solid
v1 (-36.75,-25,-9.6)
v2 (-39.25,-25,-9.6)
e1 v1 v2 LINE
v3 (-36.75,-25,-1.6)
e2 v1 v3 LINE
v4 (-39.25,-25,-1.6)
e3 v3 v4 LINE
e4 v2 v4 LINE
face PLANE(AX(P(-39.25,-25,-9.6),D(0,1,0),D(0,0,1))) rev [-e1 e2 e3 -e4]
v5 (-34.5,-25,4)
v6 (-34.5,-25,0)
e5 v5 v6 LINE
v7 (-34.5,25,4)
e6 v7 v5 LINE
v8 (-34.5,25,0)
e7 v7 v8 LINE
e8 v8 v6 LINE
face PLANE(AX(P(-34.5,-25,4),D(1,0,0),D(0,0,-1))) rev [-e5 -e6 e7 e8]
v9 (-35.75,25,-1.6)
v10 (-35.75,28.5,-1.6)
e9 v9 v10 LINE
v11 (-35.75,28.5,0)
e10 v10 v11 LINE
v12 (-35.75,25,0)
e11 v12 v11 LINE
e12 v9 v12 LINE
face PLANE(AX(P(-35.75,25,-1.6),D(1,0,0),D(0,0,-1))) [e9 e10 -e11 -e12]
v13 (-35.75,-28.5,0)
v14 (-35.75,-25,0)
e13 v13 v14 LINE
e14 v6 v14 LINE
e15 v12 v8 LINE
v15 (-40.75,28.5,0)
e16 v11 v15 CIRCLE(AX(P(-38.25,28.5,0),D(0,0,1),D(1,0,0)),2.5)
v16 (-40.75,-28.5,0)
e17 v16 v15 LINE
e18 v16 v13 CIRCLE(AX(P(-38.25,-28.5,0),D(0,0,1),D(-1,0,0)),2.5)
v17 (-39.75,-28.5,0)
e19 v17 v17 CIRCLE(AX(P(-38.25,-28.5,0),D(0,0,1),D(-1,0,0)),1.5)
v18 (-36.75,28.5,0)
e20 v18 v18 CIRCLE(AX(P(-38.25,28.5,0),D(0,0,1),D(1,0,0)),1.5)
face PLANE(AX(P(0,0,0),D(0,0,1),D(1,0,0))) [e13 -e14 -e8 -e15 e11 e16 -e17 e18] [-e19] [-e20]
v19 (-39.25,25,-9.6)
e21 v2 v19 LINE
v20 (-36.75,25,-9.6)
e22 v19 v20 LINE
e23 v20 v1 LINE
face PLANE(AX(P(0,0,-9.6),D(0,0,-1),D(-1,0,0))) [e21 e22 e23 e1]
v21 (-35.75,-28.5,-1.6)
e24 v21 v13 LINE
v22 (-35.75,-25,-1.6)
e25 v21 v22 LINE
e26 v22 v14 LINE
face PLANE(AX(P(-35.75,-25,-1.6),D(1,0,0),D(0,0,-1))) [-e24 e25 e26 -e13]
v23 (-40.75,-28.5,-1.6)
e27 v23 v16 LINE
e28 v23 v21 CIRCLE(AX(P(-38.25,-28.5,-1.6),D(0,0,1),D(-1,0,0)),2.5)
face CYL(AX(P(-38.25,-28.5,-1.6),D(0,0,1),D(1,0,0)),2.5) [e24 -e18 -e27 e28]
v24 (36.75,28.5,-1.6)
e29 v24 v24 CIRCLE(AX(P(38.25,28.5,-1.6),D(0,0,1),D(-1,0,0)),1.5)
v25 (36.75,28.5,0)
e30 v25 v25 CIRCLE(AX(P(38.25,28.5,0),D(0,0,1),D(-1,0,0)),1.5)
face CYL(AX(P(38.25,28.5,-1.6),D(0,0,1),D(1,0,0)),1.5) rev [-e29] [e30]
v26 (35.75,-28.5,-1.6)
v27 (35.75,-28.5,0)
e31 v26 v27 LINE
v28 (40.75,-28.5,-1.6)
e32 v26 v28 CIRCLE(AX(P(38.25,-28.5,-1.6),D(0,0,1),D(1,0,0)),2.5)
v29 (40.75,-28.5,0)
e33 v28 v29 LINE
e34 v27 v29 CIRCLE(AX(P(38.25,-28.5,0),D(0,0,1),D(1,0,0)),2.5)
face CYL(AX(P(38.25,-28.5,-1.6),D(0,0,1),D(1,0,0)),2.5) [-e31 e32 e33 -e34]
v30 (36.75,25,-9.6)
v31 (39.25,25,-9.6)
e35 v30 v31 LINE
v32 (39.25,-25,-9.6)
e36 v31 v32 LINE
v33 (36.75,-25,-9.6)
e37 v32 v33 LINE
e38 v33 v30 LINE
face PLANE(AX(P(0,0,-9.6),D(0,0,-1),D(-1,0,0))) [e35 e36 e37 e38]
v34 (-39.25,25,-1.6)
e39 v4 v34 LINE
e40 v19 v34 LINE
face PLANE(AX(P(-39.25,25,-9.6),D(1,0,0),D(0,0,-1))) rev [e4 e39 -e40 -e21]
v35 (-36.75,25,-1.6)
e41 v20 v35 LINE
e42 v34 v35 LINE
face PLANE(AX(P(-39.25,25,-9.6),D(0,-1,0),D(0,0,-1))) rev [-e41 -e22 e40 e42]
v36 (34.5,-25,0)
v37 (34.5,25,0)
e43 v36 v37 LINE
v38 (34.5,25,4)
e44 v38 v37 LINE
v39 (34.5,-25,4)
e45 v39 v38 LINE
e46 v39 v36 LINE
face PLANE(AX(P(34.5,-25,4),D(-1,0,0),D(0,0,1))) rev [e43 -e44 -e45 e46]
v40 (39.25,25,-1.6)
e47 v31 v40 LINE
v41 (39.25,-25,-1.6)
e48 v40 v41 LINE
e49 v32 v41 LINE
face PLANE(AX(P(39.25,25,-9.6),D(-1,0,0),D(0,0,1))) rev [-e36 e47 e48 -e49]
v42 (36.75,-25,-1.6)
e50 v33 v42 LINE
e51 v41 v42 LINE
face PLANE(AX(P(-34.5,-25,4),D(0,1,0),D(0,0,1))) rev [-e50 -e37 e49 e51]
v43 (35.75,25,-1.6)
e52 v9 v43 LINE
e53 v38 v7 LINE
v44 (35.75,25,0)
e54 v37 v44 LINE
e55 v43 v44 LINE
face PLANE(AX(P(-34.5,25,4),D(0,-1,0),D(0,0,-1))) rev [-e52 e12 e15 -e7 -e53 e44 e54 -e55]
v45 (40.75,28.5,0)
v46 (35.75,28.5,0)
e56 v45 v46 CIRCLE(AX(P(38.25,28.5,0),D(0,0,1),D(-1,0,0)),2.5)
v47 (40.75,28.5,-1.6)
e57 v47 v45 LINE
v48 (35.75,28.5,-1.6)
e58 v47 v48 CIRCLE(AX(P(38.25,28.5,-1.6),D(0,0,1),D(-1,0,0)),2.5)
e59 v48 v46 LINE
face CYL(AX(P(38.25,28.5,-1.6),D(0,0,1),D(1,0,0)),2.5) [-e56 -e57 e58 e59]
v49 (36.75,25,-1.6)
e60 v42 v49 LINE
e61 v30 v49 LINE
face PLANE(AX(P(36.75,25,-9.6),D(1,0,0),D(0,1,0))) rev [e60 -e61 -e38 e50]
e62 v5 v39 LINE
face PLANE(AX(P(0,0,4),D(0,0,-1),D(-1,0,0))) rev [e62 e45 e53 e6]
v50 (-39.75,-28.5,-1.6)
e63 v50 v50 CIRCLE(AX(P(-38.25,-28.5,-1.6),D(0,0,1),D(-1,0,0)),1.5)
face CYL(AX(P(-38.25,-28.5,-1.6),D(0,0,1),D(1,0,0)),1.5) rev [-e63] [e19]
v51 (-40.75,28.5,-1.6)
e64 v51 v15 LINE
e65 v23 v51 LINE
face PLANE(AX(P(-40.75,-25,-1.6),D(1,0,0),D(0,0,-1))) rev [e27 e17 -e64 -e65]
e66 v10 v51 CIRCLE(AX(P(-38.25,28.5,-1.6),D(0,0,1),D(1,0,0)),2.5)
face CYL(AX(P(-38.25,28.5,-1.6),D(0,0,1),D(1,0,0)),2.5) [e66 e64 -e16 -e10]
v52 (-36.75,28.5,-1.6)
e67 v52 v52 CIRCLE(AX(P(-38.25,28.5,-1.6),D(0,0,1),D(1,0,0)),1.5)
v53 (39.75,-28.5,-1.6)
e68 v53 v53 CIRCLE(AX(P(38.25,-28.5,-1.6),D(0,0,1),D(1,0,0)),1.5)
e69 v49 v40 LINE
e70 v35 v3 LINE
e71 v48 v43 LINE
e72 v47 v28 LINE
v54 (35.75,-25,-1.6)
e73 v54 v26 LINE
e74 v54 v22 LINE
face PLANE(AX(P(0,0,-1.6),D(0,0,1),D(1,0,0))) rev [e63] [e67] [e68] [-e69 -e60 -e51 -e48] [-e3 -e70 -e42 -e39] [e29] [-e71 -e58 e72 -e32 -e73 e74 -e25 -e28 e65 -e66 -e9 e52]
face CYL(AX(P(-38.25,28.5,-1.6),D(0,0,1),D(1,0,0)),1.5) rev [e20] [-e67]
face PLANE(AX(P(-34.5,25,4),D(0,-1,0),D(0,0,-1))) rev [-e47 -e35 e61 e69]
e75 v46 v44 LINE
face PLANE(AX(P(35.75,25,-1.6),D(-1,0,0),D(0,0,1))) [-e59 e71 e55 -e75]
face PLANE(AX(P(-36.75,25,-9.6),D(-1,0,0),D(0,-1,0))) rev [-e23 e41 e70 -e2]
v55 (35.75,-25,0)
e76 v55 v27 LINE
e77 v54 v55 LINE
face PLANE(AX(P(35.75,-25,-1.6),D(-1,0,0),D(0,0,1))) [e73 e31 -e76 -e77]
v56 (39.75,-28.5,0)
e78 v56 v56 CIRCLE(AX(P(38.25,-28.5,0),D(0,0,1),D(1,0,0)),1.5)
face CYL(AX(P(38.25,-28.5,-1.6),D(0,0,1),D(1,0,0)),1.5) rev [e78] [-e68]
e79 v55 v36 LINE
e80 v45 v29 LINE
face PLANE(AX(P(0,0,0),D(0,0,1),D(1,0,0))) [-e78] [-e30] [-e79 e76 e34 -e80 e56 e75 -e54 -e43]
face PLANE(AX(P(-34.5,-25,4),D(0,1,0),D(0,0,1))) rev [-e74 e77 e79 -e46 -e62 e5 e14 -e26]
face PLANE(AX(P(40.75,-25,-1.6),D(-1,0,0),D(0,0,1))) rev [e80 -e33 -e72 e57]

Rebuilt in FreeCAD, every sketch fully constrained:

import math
import FreeCAD as App
import Part
import Sketcher
from FreeCAD import Vector


def add_polygon(sketch, points):
    """Adds a closed chain of lines whose ends are joined by coincident constraints."""
    first, n = sketch.GeometryCount, len(points)
    for a, b in zip(points, points[1:] + points[:1]):
        sketch.addGeometry(Part.LineSegment(App.Vector(*a, 0), App.Vector(*b, 0)), False)
    for i in range(n):
        sketch.addConstraint(Sketcher.Constraint("Coincident", first + i, 2, first + (i + 1) % n, 1))

doc = App.newDocument("Part")
body = doc.addObject("PartDesign::Body", "Body")

# Sketch on XY plane
sketch1 = body.newObject("Sketcher::SketchObject", "Sketch")
sketch1.AttachmentSupport = (doc.getObject("XY_Plane"), [""])
sketch1.MapMode = "FlatFace"
add_polygon(sketch1, [(-34, 25), (-34, -25), (34, -25), (34, 25)])  # lines 0-3
sketch1.addConstraint([
    Sketcher.Constraint("Vertical", 0),
    Sketcher.Constraint("Horizontal", 1),
    Sketcher.Constraint("Vertical", 2),
    Sketcher.Constraint("Horizontal", 3),
    Sketcher.Constraint("Symmetric", 0, 2, 2, 2, -1, 1),
    Sketcher.Constraint("DistanceX", 1, 1, 1, 2, 69.0),
    Sketcher.Constraint("DistanceY", 0, 2, 0, 1, 50.0),
])
pad1 = body.newObject("PartDesign::Pad", "Pad")
pad1.Profile = sketch1
pad1.Length = 4

# Sketch on XY plane
sketch2 = body.newObject("Sketcher::SketchObject", "Sketch001")
sketch2.AttachmentSupport = (doc.getObject("XY_Plane"), [""])
sketch2.MapMode = "FlatFace"
add_polygon(sketch2, [(41, 25), (41, -25), (-41, -25), (-41, 25)])  # lines 0-3
sketch2.addConstraint([
    Sketcher.Constraint("Vertical", 0),
    Sketcher.Constraint("Horizontal", 1),
    Sketcher.Constraint("Vertical", 2),
    Sketcher.Constraint("Horizontal", 3),
    Sketcher.Constraint("Symmetric", 0, 2, 2, 2, -1, 1),
    Sketcher.Constraint("DistanceY", 0, 2, 0, 1, 50.0),
    Sketcher.Constraint("DistanceX", 1, 2, 1, 1, 81.5),
])
pad2 = body.newObject("PartDesign::Pad", "Pad001")
pad2.Profile = sketch2
pad2.Length = 1.6
pad2.Reversed = True
body2 = doc.addObject("PartDesign::Body", "Body001")

# Sketch on XY plane
sketch3 = body2.newObject("Sketcher::SketchObject", "Sketch002")
sketch3.AttachmentSupport = (doc.getObject("XY_Plane001"), [""])
sketch3.MapMode = "FlatFace"
sketch3.addGeometry([
    Part.LineSegment(Vector(-40.8, 28.5, 0), Vector(-40.8, 25, 0)),  # 0
    Part.LineSegment(Vector(-40.8, 25, 0), Vector(-35.8, 25, 0)),  # 1
    Part.LineSegment(Vector(-35.8, 25, 0), Vector(-35.8, 28.5, 0)),  # 2
    Part.ArcOfCircle(Part.Circle(Vector(-38.2, 28.5, 0), Vector(0, 0, 1), 2.5), math.radians(0), math.radians(180)),  # 3
    Part.Circle(Vector(-38.2, 28.5, 0), Vector(0, 0, 1), 1.5),  # 4
], False)
sketch3.addConstraint([
    Sketcher.Constraint("Coincident", 0, 2, 1, 1),
    Sketcher.Constraint("Coincident", 1, 2, 2, 1),
    Sketcher.Constraint("Tangent", 2, 2, 3, 1),
    Sketcher.Constraint("Tangent", 3, 2, 0, 1),
    Sketcher.Constraint("Vertical", 0),
    Sketcher.Constraint("Horizontal", 1),
    Sketcher.Constraint("Vertical", 2),
    Sketcher.Constraint("Coincident", 4, 3, 3, 3),
    Sketcher.Constraint("Diameter", 4, 3.0),
    Sketcher.Constraint("Radius", 3, 2.5),
    Sketcher.Constraint("DistanceY", 0, 2, 0, 1, 3.5),
    Sketcher.Constraint("DistanceY", -1, 1, 0, 2, 25.0),
    Sketcher.Constraint("DistanceX", 3, 3, -1, 1, 38.25),
])
pad3 = body2.newObject("PartDesign::Pad", "Pad002")
pad3.Profile = sketch3
pad3.Length = 1.6
pad3.Reversed = True
body3 = doc.addObject("PartDesign::Body", "Body002")

# Sketch on XY plane
sketch4 = body3.newObject("Sketcher::SketchObject", "Sketch003")
sketch4.AttachmentSupport = (doc.getObject("XY_Plane002"), [""])
sketch4.MapMode = "FlatFace"
sketch4.addGeometry([
    Part.LineSegment(Vector(-35.8, -28.5, 0), Vector(-35.8, -25, 0)),  # 0
    Part.LineSegment(Vector(-35.8, -25, 0), Vector(-40.8, -25, 0)),  # 1
    Part.LineSegment(Vector(-40.8, -25, 0), Vector(-40.8, -28.5, 0)),  # 2
    Part.ArcOfCircle(Part.Circle(Vector(-38.2, -28.5, 0), Vector(0, 0, 1), 2.5), math.radians(180), math.radians(360)),  # 3
    Part.Circle(Vector(-38.2, -28.5, 0), Vector(0, 0, 1), 1.5),  # 4
], False)
sketch4.addConstraint([
    Sketcher.Constraint("Coincident", 0, 2, 1, 1),
    Sketcher.Constraint("Coincident", 1, 2, 2, 1),
    Sketcher.Constraint("Tangent", 2, 2, 3, 1),
    Sketcher.Constraint("Tangent", 3, 2, 0, 1),
    Sketcher.Constraint("Vertical", 0),
    Sketcher.Constraint("Horizontal", 1),
    Sketcher.Constraint("Vertical", 2),
    Sketcher.Constraint("Coincident", 4, 3, 3, 3),
    Sketcher.Constraint("Diameter", 4, 3.0),
    Sketcher.Constraint("Radius", 3, 2.5),
    Sketcher.Constraint("DistanceY", 0, 1, 0, 2, 3.5),
    Sketcher.Constraint("DistanceY", 0, 2, -1, 1, 25.0),
    Sketcher.Constraint("DistanceX", 3, 3, -1, 1, 38.25),
])
pad4 = body3.newObject("PartDesign::Pad", "Pad003")
pad4.Profile = sketch4
pad4.Length = 1.6
pad4.Reversed = True
body4 = doc.addObject("PartDesign::Body", "Body003")

# Sketch on XY plane
sketch5 = body4.newObject("Sketcher::SketchObject", "Sketch004")
sketch5.AttachmentSupport = (doc.getObject("XY_Plane003"), [""])
sketch5.MapMode = "FlatFace"
sketch5.addGeometry([
    Part.LineSegment(Vector(40.8, -28.5, 0), Vector(40.8, -25, 0)),  # 0
    Part.LineSegment(Vector(40.8, -25, 0), Vector(35.8, -25, 0)),  # 1
    Part.LineSegment(Vector(35.8, -25, 0), Vector(35.8, -28.5, 0)),  # 2
    Part.ArcOfCircle(Part.Circle(Vector(38.2, -28.5, 0), Vector(0, 0, 1), 2.5), math.radians(180), math.radians(360)),  # 3
    Part.Circle(Vector(38.2, -28.5, 0), Vector(0, 0, 1), 1.5),  # 4
], False)
sketch5.addConstraint([
    Sketcher.Constraint("Coincident", 0, 2, 1, 1),
    Sketcher.Constraint("Coincident", 1, 2, 2, 1),
    Sketcher.Constraint("Tangent", 2, 2, 3, 1),
    Sketcher.Constraint("Tangent", 3, 2, 0, 1),
    Sketcher.Constraint("Vertical", 0),
    Sketcher.Constraint("Horizontal", 1),
    Sketcher.Constraint("Vertical", 2),
    Sketcher.Constraint("Coincident", 4, 3, 3, 3),
    Sketcher.Constraint("Diameter", 4, 3.0),
    Sketcher.Constraint("Radius", 3, 2.5),
    Sketcher.Constraint("DistanceY", 0, 1, 0, 2, 3.5),
    Sketcher.Constraint("DistanceY", 0, 2, -1, 1, 25.0),
    Sketcher.Constraint("DistanceX", -1, 1, 3, 3, 38.25),
])
pad5 = body4.newObject("PartDesign::Pad", "Pad004")
pad5.Profile = sketch5
pad5.Length = 1.6
pad5.Reversed = True
body5 = doc.addObject("PartDesign::Body", "Body004")

# Sketch on XY plane
sketch6 = body5.newObject("Sketcher::SketchObject", "Sketch005")
sketch6.AttachmentSupport = (doc.getObject("XY_Plane004"), [""])
sketch6.MapMode = "FlatFace"
sketch6.addGeometry([
    Part.LineSegment(Vector(35.8, 28.5, 0), Vector(35.8, 25, 0)),  # 0
    Part.LineSegment(Vector(35.8, 25, 0), Vector(40.8, 25, 0)),  # 1
    Part.LineSegment(Vector(40.8, 25, 0), Vector(40.8, 28.5, 0)),  # 2
    Part.ArcOfCircle(Part.Circle(Vector(38.2, 28.5, 0), Vector(0, 0, 1), 2.5), math.radians(0), math.radians(180)),  # 3
    Part.Circle(Vector(38.2, 28.5, 0), Vector(0, 0, 1), 1.5),  # 4
], False)
sketch6.addConstraint([
    Sketcher.Constraint("Coincident", 0, 2, 1, 1),
    Sketcher.Constraint("Coincident", 1, 2, 2, 1),
    Sketcher.Constraint("Tangent", 2, 2, 3, 1),
    Sketcher.Constraint("Tangent", 3, 2, 0, 1),
    Sketcher.Constraint("Vertical", 0),
    Sketcher.Constraint("Horizontal", 1),
    Sketcher.Constraint("Vertical", 2),
    Sketcher.Constraint("Coincident", 4, 3, 3, 3),
    Sketcher.Constraint("Diameter", 4, 3.0),
    Sketcher.Constraint("Radius", 3, 2.5),
    Sketcher.Constraint("DistanceY", 0, 2, 0, 1, 3.5),
    Sketcher.Constraint("DistanceY", -1, 1, 0, 2, 25.0),
    Sketcher.Constraint("DistanceX", -1, 1, 3, 3, 38.25),
])
pad6 = body5.newObject("PartDesign::Pad", "Pad005")
pad6.Profile = sketch6
pad6.Length = 1.6
pad6.Reversed = True
doc.recompute()

boolean = body.newObject("PartDesign::Boolean", "Boolean")
boolean.Type = "Fuse"
boolean.addObjects([body2])
doc.recompute()

boolean2 = body.newObject("PartDesign::Boolean", "Boolean001")
boolean2.Type = "Fuse"
boolean2.addObjects([body3])
doc.recompute()

boolean3 = body.newObject("PartDesign::Boolean", "Boolean002")
boolean3.Type = "Fuse"
boolean3.addObjects([body4])
doc.recompute()

boolean4 = body.newObject("PartDesign::Boolean", "Boolean003")
boolean4.Type = "Fuse"
boolean4.addObjects([body5])

# Sketch on XY plane
sketch7 = body.newObject("Sketcher::SketchObject", "Sketch006")
sketch7.AttachmentSupport = (doc.getObject("XY_Plane"), [""])
sketch7.MapMode = "FlatFace"
sketch7.AttachmentOffset = App.Placement(Vector(0, 0, -1.6), App.Rotation())
add_polygon(sketch7, [(39.2, 25), (39.2, -25), (36.8, -25), (36.8, 25)])  # lines 0-3
add_polygon(sketch7, [(-36.8, 25), (-36.8, -25), (-39.2, -25), (-39.2, 25)])  # lines 4-7
sketch7.addConstraint([
    Sketcher.Constraint("Vertical", 0),
    Sketcher.Constraint("Horizontal", 1),
    Sketcher.Constraint("Vertical", 2),
    Sketcher.Constraint("Horizontal", 3),
    Sketcher.Constraint("Vertical", 4),
    Sketcher.Constraint("Horizontal", 5),
    Sketcher.Constraint("Vertical", 6),
    Sketcher.Constraint("Horizontal", 7),
    Sketcher.Constraint("Symmetric", 2, 2, 4, 2, -1, 1),
    Sketcher.Constraint("Symmetric", 0, 2, 6, 2, -1, 1),
    Sketcher.Constraint("Horizontal", 1, 2, 4, 2),
    Sketcher.Constraint("DistanceY", 0, 2, 0, 1, 50.0),
    Sketcher.Constraint("DistanceX", 1, 2, 1, 1, 2.5),
    Sketcher.Constraint("DistanceX", 4, 2, 0, 2, 76.0),
])
pad7 = body.newObject("PartDesign::Pad", "Pad006")
pad7.Profile = sketch7
pad7.Length = 8
pad7.Reversed = True

doc.recompute()
